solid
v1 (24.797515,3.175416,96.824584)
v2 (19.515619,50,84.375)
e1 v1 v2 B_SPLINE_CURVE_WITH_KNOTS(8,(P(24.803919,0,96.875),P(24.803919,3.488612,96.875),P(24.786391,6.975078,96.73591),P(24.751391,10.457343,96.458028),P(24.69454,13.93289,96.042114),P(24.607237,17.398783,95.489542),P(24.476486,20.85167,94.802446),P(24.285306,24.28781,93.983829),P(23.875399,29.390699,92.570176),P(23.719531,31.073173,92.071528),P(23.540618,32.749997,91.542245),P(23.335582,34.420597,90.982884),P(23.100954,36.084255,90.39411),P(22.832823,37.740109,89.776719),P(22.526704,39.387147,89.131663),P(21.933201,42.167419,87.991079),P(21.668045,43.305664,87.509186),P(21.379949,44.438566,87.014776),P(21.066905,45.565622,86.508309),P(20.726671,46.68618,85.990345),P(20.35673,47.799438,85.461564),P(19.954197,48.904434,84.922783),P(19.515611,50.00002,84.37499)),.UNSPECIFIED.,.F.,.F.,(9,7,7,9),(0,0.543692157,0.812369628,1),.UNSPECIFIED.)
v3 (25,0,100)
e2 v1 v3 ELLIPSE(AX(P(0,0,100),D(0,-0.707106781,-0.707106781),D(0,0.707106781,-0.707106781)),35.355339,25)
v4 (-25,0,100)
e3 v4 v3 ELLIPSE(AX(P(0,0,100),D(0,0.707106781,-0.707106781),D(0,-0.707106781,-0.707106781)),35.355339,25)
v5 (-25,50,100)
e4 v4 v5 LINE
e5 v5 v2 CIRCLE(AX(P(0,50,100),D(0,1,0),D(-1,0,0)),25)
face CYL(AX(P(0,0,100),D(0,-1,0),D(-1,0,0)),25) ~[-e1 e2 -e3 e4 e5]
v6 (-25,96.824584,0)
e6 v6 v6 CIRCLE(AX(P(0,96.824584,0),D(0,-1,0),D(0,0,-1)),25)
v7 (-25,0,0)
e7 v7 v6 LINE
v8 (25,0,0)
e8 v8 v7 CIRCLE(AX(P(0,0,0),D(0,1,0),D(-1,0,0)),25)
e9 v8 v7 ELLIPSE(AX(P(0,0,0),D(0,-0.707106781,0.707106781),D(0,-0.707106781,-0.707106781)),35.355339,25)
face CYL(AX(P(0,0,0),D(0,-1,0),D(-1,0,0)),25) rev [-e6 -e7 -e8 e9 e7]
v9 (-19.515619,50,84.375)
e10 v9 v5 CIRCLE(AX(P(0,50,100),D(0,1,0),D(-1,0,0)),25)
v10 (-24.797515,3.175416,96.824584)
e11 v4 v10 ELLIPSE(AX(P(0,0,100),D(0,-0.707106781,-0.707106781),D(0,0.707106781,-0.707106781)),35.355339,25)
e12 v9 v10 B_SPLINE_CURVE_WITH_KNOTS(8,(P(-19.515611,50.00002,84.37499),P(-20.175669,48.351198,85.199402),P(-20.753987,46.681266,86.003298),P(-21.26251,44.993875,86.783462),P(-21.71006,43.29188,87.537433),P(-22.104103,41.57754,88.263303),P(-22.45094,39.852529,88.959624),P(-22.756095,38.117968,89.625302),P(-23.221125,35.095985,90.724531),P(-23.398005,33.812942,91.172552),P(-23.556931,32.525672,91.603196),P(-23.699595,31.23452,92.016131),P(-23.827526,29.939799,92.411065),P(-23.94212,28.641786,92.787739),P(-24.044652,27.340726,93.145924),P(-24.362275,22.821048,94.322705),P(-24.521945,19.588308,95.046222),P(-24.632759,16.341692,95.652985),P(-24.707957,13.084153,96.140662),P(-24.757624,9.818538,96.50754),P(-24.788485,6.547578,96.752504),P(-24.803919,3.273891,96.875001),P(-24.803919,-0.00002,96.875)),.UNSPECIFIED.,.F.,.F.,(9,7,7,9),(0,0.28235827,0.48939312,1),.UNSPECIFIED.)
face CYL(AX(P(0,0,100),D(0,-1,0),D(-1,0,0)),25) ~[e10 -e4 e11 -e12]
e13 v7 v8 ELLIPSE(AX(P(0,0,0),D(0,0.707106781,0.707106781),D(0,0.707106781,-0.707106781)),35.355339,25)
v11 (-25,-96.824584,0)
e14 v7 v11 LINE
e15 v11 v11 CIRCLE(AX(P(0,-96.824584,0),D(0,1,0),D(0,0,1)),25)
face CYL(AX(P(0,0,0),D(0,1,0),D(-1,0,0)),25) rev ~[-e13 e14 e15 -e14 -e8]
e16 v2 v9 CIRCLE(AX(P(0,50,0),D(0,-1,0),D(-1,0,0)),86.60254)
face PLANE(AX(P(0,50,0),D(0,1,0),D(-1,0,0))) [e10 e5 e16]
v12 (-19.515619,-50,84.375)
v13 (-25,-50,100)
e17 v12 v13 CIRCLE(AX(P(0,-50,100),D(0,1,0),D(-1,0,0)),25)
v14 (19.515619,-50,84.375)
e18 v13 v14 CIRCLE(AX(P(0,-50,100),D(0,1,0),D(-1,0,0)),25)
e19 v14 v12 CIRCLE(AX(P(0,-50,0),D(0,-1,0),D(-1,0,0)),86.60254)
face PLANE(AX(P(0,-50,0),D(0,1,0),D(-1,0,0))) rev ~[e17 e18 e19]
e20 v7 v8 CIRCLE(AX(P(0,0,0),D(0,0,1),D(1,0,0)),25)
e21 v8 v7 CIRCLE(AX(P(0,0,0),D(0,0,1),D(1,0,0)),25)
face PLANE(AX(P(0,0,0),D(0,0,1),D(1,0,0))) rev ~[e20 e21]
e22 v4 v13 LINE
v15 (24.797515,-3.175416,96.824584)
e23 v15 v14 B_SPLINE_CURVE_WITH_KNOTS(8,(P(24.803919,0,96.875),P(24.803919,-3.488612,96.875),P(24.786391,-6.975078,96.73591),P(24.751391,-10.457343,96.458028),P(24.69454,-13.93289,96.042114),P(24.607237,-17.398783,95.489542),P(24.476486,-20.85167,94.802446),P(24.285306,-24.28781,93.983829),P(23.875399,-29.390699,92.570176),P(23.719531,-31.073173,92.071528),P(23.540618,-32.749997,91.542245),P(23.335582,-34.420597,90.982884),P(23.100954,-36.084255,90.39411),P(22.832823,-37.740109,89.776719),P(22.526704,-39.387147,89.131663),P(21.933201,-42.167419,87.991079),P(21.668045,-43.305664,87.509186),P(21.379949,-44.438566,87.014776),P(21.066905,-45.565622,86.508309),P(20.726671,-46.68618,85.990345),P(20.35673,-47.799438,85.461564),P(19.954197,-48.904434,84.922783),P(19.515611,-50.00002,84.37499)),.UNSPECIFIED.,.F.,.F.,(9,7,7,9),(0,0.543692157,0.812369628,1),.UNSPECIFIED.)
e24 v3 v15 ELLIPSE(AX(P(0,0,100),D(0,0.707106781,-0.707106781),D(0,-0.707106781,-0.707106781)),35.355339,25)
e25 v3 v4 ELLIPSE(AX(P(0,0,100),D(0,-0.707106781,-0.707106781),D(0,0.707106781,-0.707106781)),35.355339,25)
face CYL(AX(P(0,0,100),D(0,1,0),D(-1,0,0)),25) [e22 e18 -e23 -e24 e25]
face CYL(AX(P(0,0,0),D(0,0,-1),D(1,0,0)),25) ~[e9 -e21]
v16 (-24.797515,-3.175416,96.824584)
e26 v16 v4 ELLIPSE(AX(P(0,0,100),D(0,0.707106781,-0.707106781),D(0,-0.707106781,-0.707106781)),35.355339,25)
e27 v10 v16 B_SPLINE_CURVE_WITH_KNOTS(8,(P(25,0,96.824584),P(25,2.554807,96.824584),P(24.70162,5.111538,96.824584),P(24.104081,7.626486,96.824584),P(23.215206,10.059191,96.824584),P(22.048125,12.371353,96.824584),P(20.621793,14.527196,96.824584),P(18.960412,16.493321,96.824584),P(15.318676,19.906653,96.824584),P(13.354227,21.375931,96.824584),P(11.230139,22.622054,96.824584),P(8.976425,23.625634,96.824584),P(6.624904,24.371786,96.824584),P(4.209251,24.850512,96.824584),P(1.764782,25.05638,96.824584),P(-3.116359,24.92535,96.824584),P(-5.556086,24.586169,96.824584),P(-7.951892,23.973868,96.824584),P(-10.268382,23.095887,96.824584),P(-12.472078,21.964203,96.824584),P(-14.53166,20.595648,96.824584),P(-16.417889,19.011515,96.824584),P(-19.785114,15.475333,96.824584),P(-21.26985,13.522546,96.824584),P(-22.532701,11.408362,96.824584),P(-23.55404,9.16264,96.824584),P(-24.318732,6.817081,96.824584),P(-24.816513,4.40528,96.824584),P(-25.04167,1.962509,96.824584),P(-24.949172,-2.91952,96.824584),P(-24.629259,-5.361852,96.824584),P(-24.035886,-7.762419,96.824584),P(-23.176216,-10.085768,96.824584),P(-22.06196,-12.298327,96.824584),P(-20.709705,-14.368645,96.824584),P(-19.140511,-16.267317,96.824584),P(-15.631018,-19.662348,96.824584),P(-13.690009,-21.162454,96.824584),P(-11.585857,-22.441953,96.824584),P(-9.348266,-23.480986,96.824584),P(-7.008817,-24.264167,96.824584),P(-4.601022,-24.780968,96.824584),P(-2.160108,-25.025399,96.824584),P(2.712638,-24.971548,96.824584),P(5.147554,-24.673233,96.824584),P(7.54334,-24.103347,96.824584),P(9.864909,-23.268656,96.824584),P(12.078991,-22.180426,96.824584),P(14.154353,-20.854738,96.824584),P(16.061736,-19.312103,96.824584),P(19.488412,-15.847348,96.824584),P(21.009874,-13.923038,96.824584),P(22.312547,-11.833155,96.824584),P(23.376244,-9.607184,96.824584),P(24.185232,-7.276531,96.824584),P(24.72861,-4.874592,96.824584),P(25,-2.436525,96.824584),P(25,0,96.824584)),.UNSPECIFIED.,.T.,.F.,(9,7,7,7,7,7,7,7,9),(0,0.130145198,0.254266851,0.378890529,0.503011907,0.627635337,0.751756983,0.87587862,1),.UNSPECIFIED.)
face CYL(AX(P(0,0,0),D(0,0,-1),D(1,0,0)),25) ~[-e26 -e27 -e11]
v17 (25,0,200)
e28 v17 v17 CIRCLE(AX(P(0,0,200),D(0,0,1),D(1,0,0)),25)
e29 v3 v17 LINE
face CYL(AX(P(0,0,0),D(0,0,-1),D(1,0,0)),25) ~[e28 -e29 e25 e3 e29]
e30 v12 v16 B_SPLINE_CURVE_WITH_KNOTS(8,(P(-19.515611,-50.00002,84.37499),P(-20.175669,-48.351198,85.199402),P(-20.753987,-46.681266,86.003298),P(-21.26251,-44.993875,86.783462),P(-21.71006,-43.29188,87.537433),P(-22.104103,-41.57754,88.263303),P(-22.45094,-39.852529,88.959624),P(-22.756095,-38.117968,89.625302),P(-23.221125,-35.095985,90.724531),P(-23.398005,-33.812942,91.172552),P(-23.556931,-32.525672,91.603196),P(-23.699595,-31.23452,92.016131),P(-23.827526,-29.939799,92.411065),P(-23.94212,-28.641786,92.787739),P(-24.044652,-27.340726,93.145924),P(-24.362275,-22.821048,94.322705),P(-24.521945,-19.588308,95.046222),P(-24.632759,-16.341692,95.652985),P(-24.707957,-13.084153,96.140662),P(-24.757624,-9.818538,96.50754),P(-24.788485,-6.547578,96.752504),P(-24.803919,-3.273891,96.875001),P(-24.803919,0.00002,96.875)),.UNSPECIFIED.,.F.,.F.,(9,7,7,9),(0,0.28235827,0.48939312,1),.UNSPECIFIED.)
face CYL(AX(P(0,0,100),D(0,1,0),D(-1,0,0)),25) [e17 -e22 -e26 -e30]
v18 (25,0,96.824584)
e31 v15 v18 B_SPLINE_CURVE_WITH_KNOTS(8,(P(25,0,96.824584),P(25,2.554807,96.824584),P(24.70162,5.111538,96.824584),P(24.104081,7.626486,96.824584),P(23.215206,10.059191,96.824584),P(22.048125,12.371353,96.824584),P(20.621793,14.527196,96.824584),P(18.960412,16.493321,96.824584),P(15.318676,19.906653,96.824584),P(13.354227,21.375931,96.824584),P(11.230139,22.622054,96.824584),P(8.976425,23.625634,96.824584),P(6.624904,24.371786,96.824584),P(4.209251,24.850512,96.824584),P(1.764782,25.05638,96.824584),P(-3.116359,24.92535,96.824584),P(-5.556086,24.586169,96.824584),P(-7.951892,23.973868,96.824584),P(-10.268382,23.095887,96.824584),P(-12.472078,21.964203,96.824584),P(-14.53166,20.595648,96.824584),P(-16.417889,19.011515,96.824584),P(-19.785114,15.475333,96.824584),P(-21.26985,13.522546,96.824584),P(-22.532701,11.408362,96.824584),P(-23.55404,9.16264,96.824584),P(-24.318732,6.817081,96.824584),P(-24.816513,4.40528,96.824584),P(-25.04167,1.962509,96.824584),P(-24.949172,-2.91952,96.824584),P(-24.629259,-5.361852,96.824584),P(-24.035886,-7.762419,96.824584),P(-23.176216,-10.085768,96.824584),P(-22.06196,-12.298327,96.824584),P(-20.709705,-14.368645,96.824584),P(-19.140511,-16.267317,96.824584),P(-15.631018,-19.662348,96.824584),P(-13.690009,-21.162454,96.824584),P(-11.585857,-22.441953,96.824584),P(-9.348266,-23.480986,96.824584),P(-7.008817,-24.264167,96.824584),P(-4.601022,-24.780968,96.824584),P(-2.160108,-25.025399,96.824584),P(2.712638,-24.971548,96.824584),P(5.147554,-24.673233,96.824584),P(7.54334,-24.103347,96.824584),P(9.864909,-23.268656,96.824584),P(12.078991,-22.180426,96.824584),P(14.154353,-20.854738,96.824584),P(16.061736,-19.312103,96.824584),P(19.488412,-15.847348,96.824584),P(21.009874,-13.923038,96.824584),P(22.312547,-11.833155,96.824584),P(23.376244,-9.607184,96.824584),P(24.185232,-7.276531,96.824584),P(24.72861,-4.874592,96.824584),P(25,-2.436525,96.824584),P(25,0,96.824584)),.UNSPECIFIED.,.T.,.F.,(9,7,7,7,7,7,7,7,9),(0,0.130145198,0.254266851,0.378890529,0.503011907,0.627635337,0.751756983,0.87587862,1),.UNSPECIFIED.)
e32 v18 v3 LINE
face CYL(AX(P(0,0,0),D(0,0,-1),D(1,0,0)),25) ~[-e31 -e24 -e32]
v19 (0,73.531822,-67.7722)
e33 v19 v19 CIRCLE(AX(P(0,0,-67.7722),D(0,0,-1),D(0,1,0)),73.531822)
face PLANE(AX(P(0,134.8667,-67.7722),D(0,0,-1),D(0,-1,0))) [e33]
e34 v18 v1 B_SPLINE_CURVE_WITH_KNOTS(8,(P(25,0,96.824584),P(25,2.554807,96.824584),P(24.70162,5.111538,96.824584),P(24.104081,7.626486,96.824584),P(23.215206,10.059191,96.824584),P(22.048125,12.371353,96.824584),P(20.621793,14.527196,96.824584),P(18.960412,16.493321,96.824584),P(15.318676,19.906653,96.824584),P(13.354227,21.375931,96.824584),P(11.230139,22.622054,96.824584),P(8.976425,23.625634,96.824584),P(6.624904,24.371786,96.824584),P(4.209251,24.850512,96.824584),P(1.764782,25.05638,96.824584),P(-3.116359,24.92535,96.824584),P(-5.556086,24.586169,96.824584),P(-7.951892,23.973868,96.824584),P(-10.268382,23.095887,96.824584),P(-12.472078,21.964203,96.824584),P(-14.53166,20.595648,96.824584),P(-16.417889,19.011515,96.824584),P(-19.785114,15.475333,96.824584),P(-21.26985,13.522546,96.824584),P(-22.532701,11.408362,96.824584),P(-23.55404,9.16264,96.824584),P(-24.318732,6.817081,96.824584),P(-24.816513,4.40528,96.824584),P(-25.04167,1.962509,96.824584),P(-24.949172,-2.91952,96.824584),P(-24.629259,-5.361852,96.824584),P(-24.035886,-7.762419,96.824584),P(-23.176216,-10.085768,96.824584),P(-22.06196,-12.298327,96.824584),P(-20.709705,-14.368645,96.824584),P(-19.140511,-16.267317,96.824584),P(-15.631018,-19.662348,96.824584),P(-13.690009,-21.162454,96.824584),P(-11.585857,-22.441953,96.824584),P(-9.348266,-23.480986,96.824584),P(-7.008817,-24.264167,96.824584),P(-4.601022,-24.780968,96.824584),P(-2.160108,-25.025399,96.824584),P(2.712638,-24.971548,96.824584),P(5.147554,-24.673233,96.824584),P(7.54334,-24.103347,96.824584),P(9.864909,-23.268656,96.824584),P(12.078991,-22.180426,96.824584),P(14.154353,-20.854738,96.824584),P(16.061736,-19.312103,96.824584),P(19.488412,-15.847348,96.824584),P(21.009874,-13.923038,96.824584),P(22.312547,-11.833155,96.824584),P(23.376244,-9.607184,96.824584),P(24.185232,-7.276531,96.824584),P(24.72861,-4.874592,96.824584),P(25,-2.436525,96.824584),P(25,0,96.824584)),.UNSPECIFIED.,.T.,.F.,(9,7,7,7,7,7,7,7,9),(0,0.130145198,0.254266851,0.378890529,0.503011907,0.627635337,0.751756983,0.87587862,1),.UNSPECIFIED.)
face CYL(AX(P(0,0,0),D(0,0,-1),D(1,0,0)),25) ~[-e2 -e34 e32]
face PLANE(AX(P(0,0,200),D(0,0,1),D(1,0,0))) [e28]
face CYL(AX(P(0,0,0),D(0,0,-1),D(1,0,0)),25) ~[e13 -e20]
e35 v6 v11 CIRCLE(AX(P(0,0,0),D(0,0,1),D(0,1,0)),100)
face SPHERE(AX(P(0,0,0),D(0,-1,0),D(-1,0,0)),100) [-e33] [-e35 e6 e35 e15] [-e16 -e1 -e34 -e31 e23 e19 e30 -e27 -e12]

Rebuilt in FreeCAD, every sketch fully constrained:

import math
import FreeCAD as App
import Part
import Sketcher
from FreeCAD import Vector
Q = App.Units.Quantity


def add_polygon(sketch, points):
    """Adds a closed chain of lines whose ends are joined by coincident constraints."""
    first, n = sketch.GeometryCount, len(points)
    for a, b in zip(points, points[1:] + points[:1]):
        sketch.addGeometry(Part.LineSegment(App.Vector(*a, 0), App.Vector(*b, 0)), False)
    for i in range(n):
        sketch.addConstraint(Sketcher.Constraint("Coincident", first + i, 2, first + (i + 1) % n, 1))

doc = App.newDocument("Part")
body = doc.addObject("PartDesign::Body", "Body")

# Sketch on XY plane
sketch1 = body.newObject("Sketcher::SketchObject", "Sketch")
sketch1.AttachmentSupport = (doc.getObject("XY_Plane"), [""])
sketch1.MapMode = "FlatFace"
sketch1.addGeometry(Part.LineSegment(Vector(0, -100, 0), Vector(0, 100, 0)), False)
sketch1.addGeometry(Part.ArcOfCircle(Part.Circle(Vector(0, 0, 0), Vector(0, 0, 1), 100), math.radians(90), math.radians(270)), False)
sketch1.addConstraint(Sketcher.Constraint("Coincident", 0, 1, 1, 2))
sketch1.addConstraint(Sketcher.Constraint("Coincident", 1, 1, 0, 2))
sketch1.addConstraint(Sketcher.Constraint("Vertical", 0))
sketch1.addConstraint(Sketcher.Constraint("Coincident", 1, 3, -1, 1))
sketch1.addConstraint(Sketcher.Constraint("PointOnObject", 0, 1, -2))
sketch1.addConstraint(Sketcher.Constraint("Radius", 1, Q("100 mm")))
revolution = body.newObject("PartDesign::Revolution", "Revolution")
revolution.Profile = sketch1
revolution.ReferenceAxis = (sketch1, ["V_Axis"])
revolution.Angle = 360

# Sketch on YZ plane
sketch2 = body.newObject("Sketcher::SketchObject", "Sketch001")
sketch2.AttachmentSupport = (doc.getObject("YZ_Plane"), [""])
sketch2.MapMode = "FlatFace"
add_polygon(sketch2, [(134.8667, -136.448), (134.8667, -67.7722), (-130.8003, -67.7722), (-130.8003, -136.448)])  # lines 0-3
sketch2.addConstraint(Sketcher.Constraint("Vertical", 0))
sketch2.addConstraint(Sketcher.Constraint("Horizontal", 1))
sketch2.addConstraint(Sketcher.Constraint("Vertical", 2))
sketch2.addConstraint(Sketcher.Constraint("Horizontal", 3))
sketch2.addConstraint(Sketcher.Constraint("DistanceX", 1, 2, 1, 1, Q("265.667 mm")))
sketch2.addConstraint(Sketcher.Constraint("DistanceY", 0, 1, 0, 2, Q("68.6758 mm")))
sketch2.addConstraint(Sketcher.Constraint("DistanceY", 2, 2, -1, 1, Q("136.448 mm")))
sketch2.addConstraint(Sketcher.Constraint("DistanceX", -1, 1, 0, 2, Q("134.8667 mm")))
pocket1 = body.newObject("PartDesign::Pocket", "Pocket")
pocket1.Profile = sketch2
pocket1.Length = 200
pocket1.Midplane = True

# Sketch on XZ plane
sketch3 = body.newObject("Sketcher::SketchObject", "Sketch002")
sketch3.AttachmentSupport = (doc.getObject("XZ_Plane"), [""])
sketch3.MapMode = "FlatFace"
sketch3.addGeometry(Part.Circle(Vector(0, 0, 0), Vector(0, 0, 1), 25), False)
sketch3.addConstraint(Sketcher.Constraint("Coincident", 0, 3, -1, 1))
sketch3.addConstraint(Sketcher.Constraint("Diameter", 0, Q("50 mm")))
pocket2 = body.newObject("PartDesign::Pocket", "Pocket001")
pocket2.Profile = sketch3
pocket2.Length = 200
pocket2.Midplane = True

# Sketch on XY plane
sketch4 = body.newObject("Sketcher::SketchObject", "Sketch003")
sketch4.AttachmentSupport = (doc.getObject("XY_Plane"), [""])
sketch4.MapMode = "FlatFace"
sketch4.addGeometry(Part.Circle(Vector(0, 0, 0), Vector(0, 0, 1), 25), False)
sketch4.addConstraint(Sketcher.Constraint("Coincident", 0, 3, -1, 1))
sketch4.addConstraint(Sketcher.Constraint("Diameter", 0, Q("50 mm")))
pad1 = body.newObject("PartDesign::Pad", "Pad")
pad1.Profile = sketch4
pad1.Length = 200

# Sketch on XZ plane
sketch5 = body.newObject("Sketcher::SketchObject", "Sketch004")
sketch5.AttachmentSupport = (doc.getObject("XZ_Plane"), [""])
sketch5.MapMode = "FlatFace"
sketch5.addGeometry(Part.Circle(Vector(0, 100, 0), Vector(0, 0, 1), 25), False)
sketch5.addConstraint(Sketcher.Constraint("PointOnObject", 0, 3, -2))
sketch5.addConstraint(Sketcher.Constraint("Diameter", 0, Q("50 mm")))
sketch5.addConstraint(Sketcher.Constraint("DistanceY", -1, 1, 0, 3, Q("100 mm")))
pad2 = body.newObject("PartDesign::Pad", "Pad001")
pad2.Profile = sketch5
pad2.Length = 100
pad2.Midplane = True

doc.recompute()
